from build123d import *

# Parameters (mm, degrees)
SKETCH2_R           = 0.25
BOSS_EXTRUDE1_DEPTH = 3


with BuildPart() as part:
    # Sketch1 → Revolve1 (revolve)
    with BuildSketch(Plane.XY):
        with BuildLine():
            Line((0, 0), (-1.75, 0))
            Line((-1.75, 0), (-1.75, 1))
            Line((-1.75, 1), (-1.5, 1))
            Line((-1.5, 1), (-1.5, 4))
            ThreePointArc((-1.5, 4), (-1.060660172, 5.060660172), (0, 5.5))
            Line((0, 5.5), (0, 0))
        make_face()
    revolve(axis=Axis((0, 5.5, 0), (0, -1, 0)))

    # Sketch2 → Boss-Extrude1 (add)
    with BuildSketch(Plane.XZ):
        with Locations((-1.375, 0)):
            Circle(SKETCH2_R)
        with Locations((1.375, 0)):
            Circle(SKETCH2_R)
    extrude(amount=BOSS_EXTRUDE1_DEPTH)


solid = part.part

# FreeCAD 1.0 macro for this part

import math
import FreeCAD as App
import Part
import Sketcher
from FreeCAD import Vector
Q = App.Units.Quantity

doc = App.newDocument("Part")
body = doc.addObject("PartDesign::Body", "Body")

# Sketch on XY plane
sketch1 = body.newObject("Sketcher::SketchObject", "Sketch")
sketch1.AttachmentSupport = (doc.getObject("XY_Plane"), [""])
sketch1.MapMode = "FlatFace"
sketch1.addGeometry([
    Part.LineSegment(Vector(-1.75, 0, 0), Vector(0, 0, 0)),  # 0
    Part.LineSegment(Vector(0, 0, 0), Vector(0, 5.5, 0)),  # 1
    Part.ArcOfCircle(Part.Circle(Vector(0, 4, 0), Vector(0, 0, 1), 1.5), math.radians(90), math.radians(180)),  # 2
    Part.LineSegment(Vector(-1.5, 4, 0), Vector(-1.5, 1, 0)),  # 3
    Part.LineSegment(Vector(-1.5, 1, 0), Vector(-1.75, 1, 0)),  # 4
    Part.LineSegment(Vector(-1.75, 1, 0), Vector(-1.75, 0, 0)),  # 5
], False)
sketch1.addConstraint([
    Sketcher.Constraint("Coincident", 0, 2, 1, 1),
    Sketcher.Constraint("Coincident", 1, 2, 2, 1),
    Sketcher.Constraint("Tangent", 2, 2, 3, 1),
    Sketcher.Constraint("Coincident", 3, 2, 4, 1),
    Sketcher.Constraint("Coincident", 4, 2, 5, 1),
    Sketcher.Constraint("Coincident", 5, 2, 0, 1),
    Sketcher.Constraint("Horizontal", 0),
    Sketcher.Constraint("Vertical", 1),
    Sketcher.Constraint("Vertical", 3),
    Sketcher.Constraint("Horizontal", 4),
    Sketcher.Constraint("Vertical", 5),
    Sketcher.Constraint("Coincident", 0, 2, -1, 1),
    Sketcher.Constraint("PointOnObject", 2, 3, -2),
    Sketcher.Constraint("Radius", 2, Q("1.5 mm")),
    Sketcher.Constraint("DistanceY", 3, 2, 3, 1, Q("3 mm")),
    Sketcher.Constraint("DistanceY", 5, 2, 5, 1, Q("1 mm")),
    Sketcher.Constraint("DistanceX", 0, 1, 0, 2, Q("1.75 mm")),
])
revolution = body.newObject("PartDesign::Revolution", "Revolution")
revolution.Profile = sketch1
revolution.ReferenceAxis = (sketch1, ["V_Axis"])
revolution.Angle = 360

# Sketch on XZ plane
sketch2 = body.newObject("Sketcher::SketchObject", "Sketch001")
sketch2.AttachmentSupport = (doc.getObject("XZ_Plane"), [""])
sketch2.MapMode = "FlatFace"
sketch2.addGeometry([
    Part.Circle(Vector(-1.38, 0, 0), Vector(0, 0, 1), 0.25),
    Part.Circle(Vector(1.38, 0, 0), Vector(0, 0, 1), 0.25),
], False)
sketch2.addConstraint([
    Sketcher.Constraint("Equal", 0, 1),
    Sketcher.Constraint("Symmetric", 0, 3, 1, 3, -1, 1),
    Sketcher.Constraint("PointOnObject", 0, 3, -1),
    Sketcher.Constraint("Diameter", 0, Q("0.5 mm")),
    Sketcher.Constraint("DistanceX", 0, 3, 1, 3, Q("2.75 mm")),
])
pad1 = body.newObject("PartDesign::Pad", "Pad")
pad1.Profile = sketch2
pad1.Length = 3

doc.recompute()
